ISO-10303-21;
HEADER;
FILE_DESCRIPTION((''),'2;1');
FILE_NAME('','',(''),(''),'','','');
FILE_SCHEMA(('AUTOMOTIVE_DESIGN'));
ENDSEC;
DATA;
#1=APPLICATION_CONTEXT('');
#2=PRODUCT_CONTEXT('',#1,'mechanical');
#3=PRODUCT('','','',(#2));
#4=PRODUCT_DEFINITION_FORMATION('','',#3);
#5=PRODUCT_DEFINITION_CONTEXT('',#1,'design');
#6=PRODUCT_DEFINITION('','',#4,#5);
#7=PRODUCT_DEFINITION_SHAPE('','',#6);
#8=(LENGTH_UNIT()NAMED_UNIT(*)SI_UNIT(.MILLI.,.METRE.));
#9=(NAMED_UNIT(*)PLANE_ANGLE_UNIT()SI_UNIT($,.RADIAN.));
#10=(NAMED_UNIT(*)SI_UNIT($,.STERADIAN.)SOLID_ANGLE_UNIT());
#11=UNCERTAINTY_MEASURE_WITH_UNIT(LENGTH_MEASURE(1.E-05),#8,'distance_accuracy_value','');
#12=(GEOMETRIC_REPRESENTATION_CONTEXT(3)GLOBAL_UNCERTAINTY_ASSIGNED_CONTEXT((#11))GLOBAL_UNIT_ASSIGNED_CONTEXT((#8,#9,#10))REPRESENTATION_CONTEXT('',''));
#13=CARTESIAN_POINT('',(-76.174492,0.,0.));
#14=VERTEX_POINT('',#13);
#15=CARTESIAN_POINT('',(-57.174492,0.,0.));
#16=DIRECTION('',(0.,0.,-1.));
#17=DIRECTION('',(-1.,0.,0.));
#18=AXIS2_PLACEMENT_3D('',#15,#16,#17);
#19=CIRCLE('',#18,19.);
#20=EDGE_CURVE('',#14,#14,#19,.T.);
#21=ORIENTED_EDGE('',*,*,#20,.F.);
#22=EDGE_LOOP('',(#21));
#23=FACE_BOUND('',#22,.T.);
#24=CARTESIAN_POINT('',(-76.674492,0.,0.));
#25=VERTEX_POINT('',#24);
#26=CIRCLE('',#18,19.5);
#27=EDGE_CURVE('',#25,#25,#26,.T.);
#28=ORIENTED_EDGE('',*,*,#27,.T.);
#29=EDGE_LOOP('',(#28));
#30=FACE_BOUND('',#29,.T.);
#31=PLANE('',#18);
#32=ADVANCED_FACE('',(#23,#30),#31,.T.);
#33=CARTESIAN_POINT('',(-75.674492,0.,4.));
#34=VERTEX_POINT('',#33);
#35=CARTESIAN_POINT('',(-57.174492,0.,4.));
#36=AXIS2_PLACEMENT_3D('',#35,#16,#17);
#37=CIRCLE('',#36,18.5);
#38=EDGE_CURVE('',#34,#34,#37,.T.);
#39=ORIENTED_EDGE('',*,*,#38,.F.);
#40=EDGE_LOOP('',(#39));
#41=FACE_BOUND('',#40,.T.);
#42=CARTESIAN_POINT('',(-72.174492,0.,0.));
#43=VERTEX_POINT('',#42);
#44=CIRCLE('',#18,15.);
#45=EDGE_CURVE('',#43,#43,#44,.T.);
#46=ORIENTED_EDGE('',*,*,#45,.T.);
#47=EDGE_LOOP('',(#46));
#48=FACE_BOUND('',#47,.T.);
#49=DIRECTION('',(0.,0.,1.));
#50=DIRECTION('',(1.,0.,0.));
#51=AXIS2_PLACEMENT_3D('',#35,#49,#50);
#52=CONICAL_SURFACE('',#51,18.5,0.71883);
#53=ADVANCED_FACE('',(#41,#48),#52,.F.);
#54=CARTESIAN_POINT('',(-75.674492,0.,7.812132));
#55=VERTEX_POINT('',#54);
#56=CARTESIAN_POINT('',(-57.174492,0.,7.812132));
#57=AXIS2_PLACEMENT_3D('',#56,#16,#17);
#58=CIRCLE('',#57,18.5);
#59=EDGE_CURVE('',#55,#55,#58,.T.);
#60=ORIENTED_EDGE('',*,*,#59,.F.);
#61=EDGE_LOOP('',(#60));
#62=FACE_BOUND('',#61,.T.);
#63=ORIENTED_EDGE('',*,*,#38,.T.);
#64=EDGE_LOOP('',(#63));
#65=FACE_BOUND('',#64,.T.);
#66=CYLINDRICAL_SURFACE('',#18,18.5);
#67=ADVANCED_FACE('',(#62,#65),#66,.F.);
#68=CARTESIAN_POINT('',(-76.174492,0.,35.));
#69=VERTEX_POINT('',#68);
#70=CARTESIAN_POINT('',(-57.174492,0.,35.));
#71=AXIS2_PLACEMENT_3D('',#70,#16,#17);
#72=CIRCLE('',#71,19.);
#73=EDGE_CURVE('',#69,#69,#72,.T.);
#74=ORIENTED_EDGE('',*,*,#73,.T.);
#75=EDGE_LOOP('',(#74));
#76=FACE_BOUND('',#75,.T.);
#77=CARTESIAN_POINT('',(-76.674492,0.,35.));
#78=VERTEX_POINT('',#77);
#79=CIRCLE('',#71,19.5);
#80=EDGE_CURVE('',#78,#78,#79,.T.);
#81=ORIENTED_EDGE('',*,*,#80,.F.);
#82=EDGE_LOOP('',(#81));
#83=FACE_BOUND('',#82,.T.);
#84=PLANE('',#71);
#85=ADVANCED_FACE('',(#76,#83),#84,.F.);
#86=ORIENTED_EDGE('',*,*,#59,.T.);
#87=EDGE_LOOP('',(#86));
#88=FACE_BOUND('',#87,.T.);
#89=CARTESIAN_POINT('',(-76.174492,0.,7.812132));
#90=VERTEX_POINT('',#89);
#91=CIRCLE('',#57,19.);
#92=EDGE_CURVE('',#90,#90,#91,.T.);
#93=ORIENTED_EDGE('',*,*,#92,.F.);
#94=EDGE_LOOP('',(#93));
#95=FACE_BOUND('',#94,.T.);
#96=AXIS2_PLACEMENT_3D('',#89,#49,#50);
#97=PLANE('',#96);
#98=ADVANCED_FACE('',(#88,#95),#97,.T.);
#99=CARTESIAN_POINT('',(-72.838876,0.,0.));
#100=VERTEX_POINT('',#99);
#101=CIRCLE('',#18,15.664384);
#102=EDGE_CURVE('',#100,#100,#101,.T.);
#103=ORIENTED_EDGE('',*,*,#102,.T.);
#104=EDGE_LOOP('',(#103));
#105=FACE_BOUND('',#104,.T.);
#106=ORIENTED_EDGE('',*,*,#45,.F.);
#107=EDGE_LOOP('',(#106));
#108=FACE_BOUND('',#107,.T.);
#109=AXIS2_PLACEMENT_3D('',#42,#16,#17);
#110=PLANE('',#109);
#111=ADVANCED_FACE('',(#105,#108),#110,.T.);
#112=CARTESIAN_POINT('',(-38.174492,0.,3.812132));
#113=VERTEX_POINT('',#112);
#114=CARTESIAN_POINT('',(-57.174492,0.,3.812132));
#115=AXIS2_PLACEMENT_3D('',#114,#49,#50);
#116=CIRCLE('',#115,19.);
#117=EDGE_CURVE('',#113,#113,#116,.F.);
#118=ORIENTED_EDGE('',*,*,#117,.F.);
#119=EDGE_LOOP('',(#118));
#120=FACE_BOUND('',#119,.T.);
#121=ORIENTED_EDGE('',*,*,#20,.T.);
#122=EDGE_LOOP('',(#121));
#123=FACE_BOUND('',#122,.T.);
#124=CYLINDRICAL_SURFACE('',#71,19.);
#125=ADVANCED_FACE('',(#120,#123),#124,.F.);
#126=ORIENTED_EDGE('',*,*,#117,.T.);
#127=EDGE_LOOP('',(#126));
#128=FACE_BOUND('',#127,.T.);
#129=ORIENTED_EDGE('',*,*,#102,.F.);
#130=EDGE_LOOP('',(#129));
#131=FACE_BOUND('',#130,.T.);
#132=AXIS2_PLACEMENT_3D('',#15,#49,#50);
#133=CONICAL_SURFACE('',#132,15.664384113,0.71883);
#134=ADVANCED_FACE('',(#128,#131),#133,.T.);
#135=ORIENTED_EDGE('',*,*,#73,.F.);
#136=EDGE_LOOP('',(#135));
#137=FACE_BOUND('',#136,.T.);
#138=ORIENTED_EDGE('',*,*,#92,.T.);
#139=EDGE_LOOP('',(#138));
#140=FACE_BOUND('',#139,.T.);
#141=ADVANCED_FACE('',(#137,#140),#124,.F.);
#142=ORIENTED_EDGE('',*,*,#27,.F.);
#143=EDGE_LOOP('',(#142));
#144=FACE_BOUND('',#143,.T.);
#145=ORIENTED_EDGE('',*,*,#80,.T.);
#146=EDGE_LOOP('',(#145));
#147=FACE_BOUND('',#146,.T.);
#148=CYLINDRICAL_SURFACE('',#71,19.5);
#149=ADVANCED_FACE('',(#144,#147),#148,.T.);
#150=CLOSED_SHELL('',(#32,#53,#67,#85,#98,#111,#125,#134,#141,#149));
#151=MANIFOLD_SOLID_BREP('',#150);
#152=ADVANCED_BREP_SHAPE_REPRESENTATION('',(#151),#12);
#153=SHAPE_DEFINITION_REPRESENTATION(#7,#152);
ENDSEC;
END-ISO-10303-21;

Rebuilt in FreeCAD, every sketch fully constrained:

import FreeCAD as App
import Part
import Sketcher
from FreeCAD import Vector
Q = App.Units.Quantity

doc = App.newDocument("Part")
body = doc.addObject("PartDesign::Body", "Body")

sketch1 = doc.addObject("Sketcher::SketchObject", "Sketch")
body.addObject(sketch1)
sketch1.AttachmentSupport = (doc.XZ_Plane, [""])
sketch1.MapMode = "FlatFace"
sketch1.addGeometry(Part.LineSegment(Vector(-72.838876, 0, 0), Vector(-76.174492, 3.812132, 0)), False)
sketch1.addGeometry(Part.LineSegment(Vector(-76.174492, 3.812132, 0), Vector(-76.174492, 7.812132, 0)), False)
sketch1.addGeometry(Part.LineSegment(Vector(-76.174492, 7.812132, 0), Vector(-75.674492, 7.812132, 0)), False)
sketch1.addGeometry(Part.LineSegment(Vector(-75.674492, 7.812132, 0), Vector(-75.674492, 4, 0)), False)
sketch1.addGeometry(Part.LineSegment(Vector(-75.674492, 4, 0), Vector(-72.174492, 0, 0)), False)
sketch1.addGeometry(Part.LineSegment(Vector(-72.174492, 0, 0), Vector(-72.838876, 0, 0)), False)
sketch1.addGeometry(Part.LineSegment(Vector(-57.174492, 0, 0), Vector(-57.174492, 7.812132, 0)), True)
sketch1.addConstraint(Sketcher.Constraint("Coincident", 0, 2, 1, 1))
sketch1.addConstraint(Sketcher.Constraint("Coincident", 1, 2, 2, 1))
sketch1.addConstraint(Sketcher.Constraint("Coincident", 2, 2, 3, 1))
sketch1.addConstraint(Sketcher.Constraint("Coincident", 3, 2, 4, 1))
sketch1.addConstraint(Sketcher.Constraint("Coincident", 4, 2, 5, 1))
sketch1.addConstraint(Sketcher.Constraint("Coincident", 5, 2, 0, 1))
sketch1.addConstraint(Sketcher.Constraint("Vertical", 1))
sketch1.addConstraint(Sketcher.Constraint("Horizontal", 2))
sketch1.addConstraint(Sketcher.Constraint("Vertical", 3))
sketch1.addConstraint(Sketcher.Constraint("Horizontal", 5))
sketch1.addConstraint(Sketcher.Constraint("Vertical", 6))
sketch1.addConstraint(Sketcher.Constraint("PointOnObject", 4, 2, -1))
sketch1.addConstraint(Sketcher.Constraint("PointOnObject", 6, 1, -1))
sketch1.addConstraint(Sketcher.Constraint("Parallel", 0, 4))
sketch1.addConstraint(Sketcher.Constraint("Horizontal", 2, 2, 6, 2))
sketch1.addConstraint(Sketcher.Constraint("DistanceY", 1, 1, 1, 2, Q("4 mm")))
sketch1.addConstraint(Sketcher.Constraint("DistanceX", 2, 1, 2, 2, Q("0.5 mm")))
sketch1.addConstraint(Sketcher.Constraint("DistanceY", -1, 1, 3, 2, Q("4 mm")))
sketch1.addConstraint(Sketcher.Constraint("DistanceX", 0, 2, 4, 2, Q("4 mm")))
sketch1.addConstraint(Sketcher.Constraint("DistanceX", 4, 2, 6, 1, Q("15 mm")))
sketch1.addConstraint(Sketcher.Constraint("Distance", 0, Q("5.06544 mm")))
sketch1.addConstraint(Sketcher.Constraint("DistanceX", 0, 2, -1, 1, Q("76.174492 mm")))
revolution = doc.addObject("PartDesign::Revolution", "Revolution")
body.addObject(revolution)
revolution.Profile = sketch1
revolution.ReferenceAxis = (sketch1, ["Axis0"])
revolution.Angle = 360

sketch2 = doc.addObject("Sketcher::SketchObject", "Sketch001")
body.addObject(sketch2)
sketch2.AttachmentSupport = (doc.XY_Plane, [""])
sketch2.MapMode = "FlatFace"
sketch2.AttachmentOffset = App.Placement(Vector(0, 0, 35), App.Rotation())
sketch2.addGeometry(Part.Circle(Vector(-57.174492, 0, 0), Vector(0, 0, 1), 19.5), False)
sketch2.addGeometry(Part.Circle(Vector(-57.174492, 0, 0), Vector(0, 0, 1), 19), False)
sketch2.addConstraint(Sketcher.Constraint("Coincident", 1, 3, 0, 3))
sketch2.addConstraint(Sketcher.Constraint("PointOnObject", 0, 3, -1))
sketch2.addConstraint(Sketcher.Constraint("Diameter", 0, Q("39 mm")))
sketch2.addConstraint(Sketcher.Constraint("Diameter", 1, Q("38 mm")))
sketch2.addConstraint(Sketcher.Constraint("DistanceX", 0, 3, -1, 1, Q("57.174492 mm")))
pad1 = doc.addObject("PartDesign::Pad", "Pad")
body.addObject(pad1)
pad1.Profile = sketch2
pad1.Length = 35
pad1.Reversed = True

doc.recompute()
